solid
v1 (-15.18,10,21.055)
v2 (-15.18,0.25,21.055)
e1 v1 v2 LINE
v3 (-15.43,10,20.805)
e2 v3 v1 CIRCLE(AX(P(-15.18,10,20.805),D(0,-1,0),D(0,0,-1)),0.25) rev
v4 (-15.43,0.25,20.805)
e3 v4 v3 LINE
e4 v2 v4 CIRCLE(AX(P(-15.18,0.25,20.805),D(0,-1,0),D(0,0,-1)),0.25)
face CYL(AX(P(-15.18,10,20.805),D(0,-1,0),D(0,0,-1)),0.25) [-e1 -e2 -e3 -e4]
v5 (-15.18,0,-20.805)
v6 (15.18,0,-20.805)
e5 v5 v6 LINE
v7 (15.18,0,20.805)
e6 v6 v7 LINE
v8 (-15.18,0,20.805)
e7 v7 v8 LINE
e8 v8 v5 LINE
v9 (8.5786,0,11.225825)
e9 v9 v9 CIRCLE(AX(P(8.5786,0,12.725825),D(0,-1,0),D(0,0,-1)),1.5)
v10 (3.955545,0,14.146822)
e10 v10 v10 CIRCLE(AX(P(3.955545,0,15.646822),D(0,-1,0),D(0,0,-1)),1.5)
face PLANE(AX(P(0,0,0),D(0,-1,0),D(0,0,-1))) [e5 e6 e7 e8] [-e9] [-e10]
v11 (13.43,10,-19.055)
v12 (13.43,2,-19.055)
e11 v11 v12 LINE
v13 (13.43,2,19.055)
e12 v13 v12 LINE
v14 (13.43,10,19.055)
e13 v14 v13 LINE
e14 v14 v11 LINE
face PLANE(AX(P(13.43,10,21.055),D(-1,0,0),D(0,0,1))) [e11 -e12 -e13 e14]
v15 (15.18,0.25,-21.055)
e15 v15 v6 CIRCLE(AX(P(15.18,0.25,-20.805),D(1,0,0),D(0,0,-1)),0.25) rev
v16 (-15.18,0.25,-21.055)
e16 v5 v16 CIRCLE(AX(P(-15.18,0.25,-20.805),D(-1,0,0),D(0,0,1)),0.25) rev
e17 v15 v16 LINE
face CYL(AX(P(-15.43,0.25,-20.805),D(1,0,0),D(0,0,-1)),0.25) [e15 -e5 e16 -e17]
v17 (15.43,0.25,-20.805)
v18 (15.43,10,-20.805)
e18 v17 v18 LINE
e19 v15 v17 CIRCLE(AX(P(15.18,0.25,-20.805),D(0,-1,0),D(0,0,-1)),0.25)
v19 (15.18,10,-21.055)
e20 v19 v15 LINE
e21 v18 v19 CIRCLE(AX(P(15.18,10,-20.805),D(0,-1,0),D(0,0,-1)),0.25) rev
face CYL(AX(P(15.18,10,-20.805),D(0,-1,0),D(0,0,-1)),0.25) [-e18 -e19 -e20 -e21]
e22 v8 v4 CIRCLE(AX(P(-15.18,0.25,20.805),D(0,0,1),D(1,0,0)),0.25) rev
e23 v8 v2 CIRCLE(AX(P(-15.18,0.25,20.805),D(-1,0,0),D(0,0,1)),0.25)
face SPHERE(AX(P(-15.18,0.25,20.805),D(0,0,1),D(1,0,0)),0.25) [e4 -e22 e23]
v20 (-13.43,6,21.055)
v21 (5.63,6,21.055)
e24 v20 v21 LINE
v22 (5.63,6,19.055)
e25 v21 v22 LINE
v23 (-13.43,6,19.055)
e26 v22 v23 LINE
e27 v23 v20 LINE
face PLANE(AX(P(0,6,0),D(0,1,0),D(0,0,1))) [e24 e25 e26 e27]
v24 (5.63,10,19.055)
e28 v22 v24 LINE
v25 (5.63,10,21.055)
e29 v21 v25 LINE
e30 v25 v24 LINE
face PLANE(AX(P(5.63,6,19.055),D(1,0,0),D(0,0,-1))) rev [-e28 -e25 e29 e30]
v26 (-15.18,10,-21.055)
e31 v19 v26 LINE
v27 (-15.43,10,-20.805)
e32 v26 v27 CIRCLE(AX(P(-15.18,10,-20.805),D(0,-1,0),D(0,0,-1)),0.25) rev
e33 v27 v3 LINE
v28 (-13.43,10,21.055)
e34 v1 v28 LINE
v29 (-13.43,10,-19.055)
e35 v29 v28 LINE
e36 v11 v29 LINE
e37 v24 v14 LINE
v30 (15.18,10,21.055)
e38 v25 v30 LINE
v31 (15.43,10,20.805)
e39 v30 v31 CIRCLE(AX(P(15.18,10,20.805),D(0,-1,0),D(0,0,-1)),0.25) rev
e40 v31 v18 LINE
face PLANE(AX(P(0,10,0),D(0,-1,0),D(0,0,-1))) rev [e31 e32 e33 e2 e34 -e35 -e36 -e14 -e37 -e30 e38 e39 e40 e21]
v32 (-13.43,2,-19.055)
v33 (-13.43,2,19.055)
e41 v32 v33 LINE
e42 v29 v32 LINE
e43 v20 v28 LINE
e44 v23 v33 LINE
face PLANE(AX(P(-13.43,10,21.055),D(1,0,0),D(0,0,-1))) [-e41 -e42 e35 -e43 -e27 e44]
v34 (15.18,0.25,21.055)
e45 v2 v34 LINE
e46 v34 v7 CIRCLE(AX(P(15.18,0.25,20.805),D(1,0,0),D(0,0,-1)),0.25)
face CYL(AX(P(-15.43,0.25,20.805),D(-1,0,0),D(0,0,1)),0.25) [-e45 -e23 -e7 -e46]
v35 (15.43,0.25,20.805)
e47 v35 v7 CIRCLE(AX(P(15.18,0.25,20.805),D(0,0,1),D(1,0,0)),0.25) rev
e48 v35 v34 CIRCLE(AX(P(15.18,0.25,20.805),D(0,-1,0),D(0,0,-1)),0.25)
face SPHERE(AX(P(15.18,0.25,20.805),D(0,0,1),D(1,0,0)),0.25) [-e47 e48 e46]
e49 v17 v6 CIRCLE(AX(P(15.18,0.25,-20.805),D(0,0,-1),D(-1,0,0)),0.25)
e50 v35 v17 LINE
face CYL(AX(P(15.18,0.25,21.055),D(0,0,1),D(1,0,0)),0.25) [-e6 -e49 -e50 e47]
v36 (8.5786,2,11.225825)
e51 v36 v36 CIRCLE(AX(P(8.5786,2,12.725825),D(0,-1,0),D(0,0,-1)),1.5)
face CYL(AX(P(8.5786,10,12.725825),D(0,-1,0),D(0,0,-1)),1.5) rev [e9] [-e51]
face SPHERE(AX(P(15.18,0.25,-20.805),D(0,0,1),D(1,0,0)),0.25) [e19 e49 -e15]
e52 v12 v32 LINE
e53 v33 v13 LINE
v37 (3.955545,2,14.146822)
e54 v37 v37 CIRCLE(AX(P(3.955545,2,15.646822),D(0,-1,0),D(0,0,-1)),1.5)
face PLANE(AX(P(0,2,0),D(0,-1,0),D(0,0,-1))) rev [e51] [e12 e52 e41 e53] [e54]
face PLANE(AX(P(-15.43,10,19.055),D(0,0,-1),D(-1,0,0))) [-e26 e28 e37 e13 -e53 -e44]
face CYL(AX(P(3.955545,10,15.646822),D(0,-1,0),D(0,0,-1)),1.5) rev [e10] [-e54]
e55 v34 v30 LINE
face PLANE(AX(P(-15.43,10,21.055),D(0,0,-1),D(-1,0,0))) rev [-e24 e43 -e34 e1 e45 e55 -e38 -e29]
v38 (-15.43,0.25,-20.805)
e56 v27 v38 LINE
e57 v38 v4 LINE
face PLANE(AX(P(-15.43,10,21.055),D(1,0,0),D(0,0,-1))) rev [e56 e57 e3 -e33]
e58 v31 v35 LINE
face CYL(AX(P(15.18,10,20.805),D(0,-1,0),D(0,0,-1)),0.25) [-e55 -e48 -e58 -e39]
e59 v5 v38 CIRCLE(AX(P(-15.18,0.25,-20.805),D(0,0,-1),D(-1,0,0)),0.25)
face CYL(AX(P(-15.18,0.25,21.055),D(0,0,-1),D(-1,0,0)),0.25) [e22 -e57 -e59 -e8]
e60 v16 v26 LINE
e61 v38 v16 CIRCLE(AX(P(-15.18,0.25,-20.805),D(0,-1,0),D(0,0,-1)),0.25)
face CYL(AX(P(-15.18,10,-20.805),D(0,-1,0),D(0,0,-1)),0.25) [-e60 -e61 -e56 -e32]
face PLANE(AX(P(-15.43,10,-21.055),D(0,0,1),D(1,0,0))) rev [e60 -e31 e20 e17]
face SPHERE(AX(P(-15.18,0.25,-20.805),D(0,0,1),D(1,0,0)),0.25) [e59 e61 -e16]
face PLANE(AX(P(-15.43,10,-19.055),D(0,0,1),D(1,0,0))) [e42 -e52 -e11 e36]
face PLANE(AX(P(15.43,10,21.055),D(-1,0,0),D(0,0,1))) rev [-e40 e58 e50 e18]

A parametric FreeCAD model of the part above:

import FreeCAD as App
import Part
import Sketcher

V = App.Vector


def edges_at(feature, points):
    """Names of the edges that pass closest to the given points."""
    edges = feature.Shape.Edges
    near = lambda p: min(range(len(edges)), key=lambda i: edges[i].distToShape(Part.Vertex(*p))[0])
    return sorted({f"Edge{near(p) + 1}" for p in points})


def faces_at(feature, points):
    """Names of the faces that lie closest to the given points."""
    faces = feature.Shape.Faces
    near = lambda p: min(range(len(faces)), key=lambda i: faces[i].distToShape(Part.Vertex(*p))[0])
    return sorted({f"Face{near(p) + 1}" for p in points})


def add_polygon(sketch, points):
    """Adds a closed chain of lines whose ends are joined by coincident constraints."""
    first, n = sketch.GeometryCount, len(points)
    for a, b in zip(points, points[1:] + points[:1]):
        sketch.addGeometry(Part.LineSegment(App.Vector(*a, 0), App.Vector(*b, 0)), False)
    for i in range(n):
        sketch.addConstraint(Sketcher.Constraint("Coincident", first + i, 2, first + (i + 1) % n, 1))

doc = App.newDocument("Part")
body = doc.addObject("PartDesign::Body", "Body")

sketch1 = body.newObject("Sketcher::SketchObject", "Sketch")
sketch1.AttachmentSupport = (doc.getObject("XZ_Plane"), [""])
sketch1.MapMode = "FlatFace"
add_polygon(sketch1, [(-15.43, -21.055), (-15.43, 21.055), (15.43, 21.055), (15.43, -21.055)])
sketch1.addConstraint([
    Sketcher.Constraint("Vertical", 0),
    Sketcher.Constraint("Horizontal", 1),
    Sketcher.Constraint("Vertical", 2),
    Sketcher.Constraint("Horizontal", 3),
    Sketcher.Constraint("Symmetric", 0, 2, 2, 2, -1, 1),
    Sketcher.Constraint("DistanceX", 1, 1, 1, 2, 30.86),
    Sketcher.Constraint("DistanceY", 0, 1, 0, 2, 42.11),
])
pad1 = body.newObject("PartDesign::Pad", "Pad")
pad1.Profile = sketch1
pad1.Length = 10
pad1.Reversed = True
doc.recompute()

thickness = body.newObject("PartDesign::Thickness", "Thickness")
thickness.Base = (pad1, faces_at(pad1, [(0, 10, 0)]))
thickness.Value = 2
thickness.Reversed = True
thickness.Join = "Intersection"

sketch2 = body.newObject("Sketcher::SketchObject", "Sketch001")
sketch2.AttachmentSupport = (doc.getObject("XZ_Plane"), [""])
sketch2.MapMode = "FlatFace"
sketch2.AttachmentOffset = App.Placement(V(0, 0, -10), App.Rotation())
add_polygon(sketch2, [(-13.43, 19.055), (-13.43, 21.055), (5.63, 21.055), (5.63, 19.055)])
sketch2.addConstraint([
    Sketcher.Constraint("Vertical", 0),
    Sketcher.Constraint("Horizontal", 1),
    Sketcher.Constraint("Vertical", 2),
    Sketcher.Constraint("Horizontal", 3),
    Sketcher.Constraint("DistanceY", 0, 1, 0, 2, 2.0),
    Sketcher.Constraint("DistanceX", 1, 1, 1, 2, 19.06),
    Sketcher.Constraint("DistanceX", 0, 2, -1, 1, 13.43),
    Sketcher.Constraint("DistanceY", -1, 1, 0, 2, 21.055),
])
pocket1 = body.newObject("PartDesign::Pocket", "Pocket")
pocket1.Profile = sketch2
pocket1.Length = 4
pocket1.Reversed = True
doc.recompute()

fillet = body.newObject("PartDesign::Fillet", "Fillet")
fillet.Base = (pocket1, edges_at(pocket1, [
    (0, 0, 21.055),
    (-15.43, 0, 0),
    (0, 0, -21.055),
    (15.43, 0, 0),
    (15.43, 5, 21.055),
    (-15.43, 5, 21.055),
    (-15.43, 5, -21.055),
    (15.43, 5, -21.055),
]))
fillet.Radius = 0.25

sketch3 = body.newObject("Sketcher::SketchObject", "Sketch002")
sketch3.AttachmentSupport = (doc.getObject("XZ_Plane"), [""])
sketch3.MapMode = "FlatFace"
sketch3.addGeometry(Part.Circle(V(3.955545, 15.646822, 0), V(0, 0, 1), 1.5), False)
sketch3.addConstraint([
    Sketcher.Constraint("Diameter", 0, 3.0),
    Sketcher.Constraint("DistanceX", -1, 1, 0, 3, 3.955545),
    Sketcher.Constraint("DistanceY", -1, 1, 0, 3, 15.646822),
])
pocket2 = body.newObject("PartDesign::Pocket", "Pocket001")
pocket2.Profile = sketch3
pocket2.Type = "ThroughAll"

sketch4 = body.newObject("Sketcher::SketchObject", "Sketch003")
sketch4.AttachmentSupport = (doc.getObject("XZ_Plane"), [""])
sketch4.MapMode = "FlatFace"
sketch4.addGeometry(Part.Circle(V(8.5786, 12.725825, 0), V(0, 0, 1), 1.5), False)
sketch4.addConstraint([
    Sketcher.Constraint("Diameter", 0, 3.0),
    Sketcher.Constraint("DistanceX", -1, 1, 0, 3, 8.5786),
    Sketcher.Constraint("DistanceY", -1, 1, 0, 3, 12.725825),
])
pocket3 = body.newObject("PartDesign::Pocket", "Pocket002")
pocket3.Profile = sketch4
pocket3.Type = "ThroughAll"

doc.recompute()
